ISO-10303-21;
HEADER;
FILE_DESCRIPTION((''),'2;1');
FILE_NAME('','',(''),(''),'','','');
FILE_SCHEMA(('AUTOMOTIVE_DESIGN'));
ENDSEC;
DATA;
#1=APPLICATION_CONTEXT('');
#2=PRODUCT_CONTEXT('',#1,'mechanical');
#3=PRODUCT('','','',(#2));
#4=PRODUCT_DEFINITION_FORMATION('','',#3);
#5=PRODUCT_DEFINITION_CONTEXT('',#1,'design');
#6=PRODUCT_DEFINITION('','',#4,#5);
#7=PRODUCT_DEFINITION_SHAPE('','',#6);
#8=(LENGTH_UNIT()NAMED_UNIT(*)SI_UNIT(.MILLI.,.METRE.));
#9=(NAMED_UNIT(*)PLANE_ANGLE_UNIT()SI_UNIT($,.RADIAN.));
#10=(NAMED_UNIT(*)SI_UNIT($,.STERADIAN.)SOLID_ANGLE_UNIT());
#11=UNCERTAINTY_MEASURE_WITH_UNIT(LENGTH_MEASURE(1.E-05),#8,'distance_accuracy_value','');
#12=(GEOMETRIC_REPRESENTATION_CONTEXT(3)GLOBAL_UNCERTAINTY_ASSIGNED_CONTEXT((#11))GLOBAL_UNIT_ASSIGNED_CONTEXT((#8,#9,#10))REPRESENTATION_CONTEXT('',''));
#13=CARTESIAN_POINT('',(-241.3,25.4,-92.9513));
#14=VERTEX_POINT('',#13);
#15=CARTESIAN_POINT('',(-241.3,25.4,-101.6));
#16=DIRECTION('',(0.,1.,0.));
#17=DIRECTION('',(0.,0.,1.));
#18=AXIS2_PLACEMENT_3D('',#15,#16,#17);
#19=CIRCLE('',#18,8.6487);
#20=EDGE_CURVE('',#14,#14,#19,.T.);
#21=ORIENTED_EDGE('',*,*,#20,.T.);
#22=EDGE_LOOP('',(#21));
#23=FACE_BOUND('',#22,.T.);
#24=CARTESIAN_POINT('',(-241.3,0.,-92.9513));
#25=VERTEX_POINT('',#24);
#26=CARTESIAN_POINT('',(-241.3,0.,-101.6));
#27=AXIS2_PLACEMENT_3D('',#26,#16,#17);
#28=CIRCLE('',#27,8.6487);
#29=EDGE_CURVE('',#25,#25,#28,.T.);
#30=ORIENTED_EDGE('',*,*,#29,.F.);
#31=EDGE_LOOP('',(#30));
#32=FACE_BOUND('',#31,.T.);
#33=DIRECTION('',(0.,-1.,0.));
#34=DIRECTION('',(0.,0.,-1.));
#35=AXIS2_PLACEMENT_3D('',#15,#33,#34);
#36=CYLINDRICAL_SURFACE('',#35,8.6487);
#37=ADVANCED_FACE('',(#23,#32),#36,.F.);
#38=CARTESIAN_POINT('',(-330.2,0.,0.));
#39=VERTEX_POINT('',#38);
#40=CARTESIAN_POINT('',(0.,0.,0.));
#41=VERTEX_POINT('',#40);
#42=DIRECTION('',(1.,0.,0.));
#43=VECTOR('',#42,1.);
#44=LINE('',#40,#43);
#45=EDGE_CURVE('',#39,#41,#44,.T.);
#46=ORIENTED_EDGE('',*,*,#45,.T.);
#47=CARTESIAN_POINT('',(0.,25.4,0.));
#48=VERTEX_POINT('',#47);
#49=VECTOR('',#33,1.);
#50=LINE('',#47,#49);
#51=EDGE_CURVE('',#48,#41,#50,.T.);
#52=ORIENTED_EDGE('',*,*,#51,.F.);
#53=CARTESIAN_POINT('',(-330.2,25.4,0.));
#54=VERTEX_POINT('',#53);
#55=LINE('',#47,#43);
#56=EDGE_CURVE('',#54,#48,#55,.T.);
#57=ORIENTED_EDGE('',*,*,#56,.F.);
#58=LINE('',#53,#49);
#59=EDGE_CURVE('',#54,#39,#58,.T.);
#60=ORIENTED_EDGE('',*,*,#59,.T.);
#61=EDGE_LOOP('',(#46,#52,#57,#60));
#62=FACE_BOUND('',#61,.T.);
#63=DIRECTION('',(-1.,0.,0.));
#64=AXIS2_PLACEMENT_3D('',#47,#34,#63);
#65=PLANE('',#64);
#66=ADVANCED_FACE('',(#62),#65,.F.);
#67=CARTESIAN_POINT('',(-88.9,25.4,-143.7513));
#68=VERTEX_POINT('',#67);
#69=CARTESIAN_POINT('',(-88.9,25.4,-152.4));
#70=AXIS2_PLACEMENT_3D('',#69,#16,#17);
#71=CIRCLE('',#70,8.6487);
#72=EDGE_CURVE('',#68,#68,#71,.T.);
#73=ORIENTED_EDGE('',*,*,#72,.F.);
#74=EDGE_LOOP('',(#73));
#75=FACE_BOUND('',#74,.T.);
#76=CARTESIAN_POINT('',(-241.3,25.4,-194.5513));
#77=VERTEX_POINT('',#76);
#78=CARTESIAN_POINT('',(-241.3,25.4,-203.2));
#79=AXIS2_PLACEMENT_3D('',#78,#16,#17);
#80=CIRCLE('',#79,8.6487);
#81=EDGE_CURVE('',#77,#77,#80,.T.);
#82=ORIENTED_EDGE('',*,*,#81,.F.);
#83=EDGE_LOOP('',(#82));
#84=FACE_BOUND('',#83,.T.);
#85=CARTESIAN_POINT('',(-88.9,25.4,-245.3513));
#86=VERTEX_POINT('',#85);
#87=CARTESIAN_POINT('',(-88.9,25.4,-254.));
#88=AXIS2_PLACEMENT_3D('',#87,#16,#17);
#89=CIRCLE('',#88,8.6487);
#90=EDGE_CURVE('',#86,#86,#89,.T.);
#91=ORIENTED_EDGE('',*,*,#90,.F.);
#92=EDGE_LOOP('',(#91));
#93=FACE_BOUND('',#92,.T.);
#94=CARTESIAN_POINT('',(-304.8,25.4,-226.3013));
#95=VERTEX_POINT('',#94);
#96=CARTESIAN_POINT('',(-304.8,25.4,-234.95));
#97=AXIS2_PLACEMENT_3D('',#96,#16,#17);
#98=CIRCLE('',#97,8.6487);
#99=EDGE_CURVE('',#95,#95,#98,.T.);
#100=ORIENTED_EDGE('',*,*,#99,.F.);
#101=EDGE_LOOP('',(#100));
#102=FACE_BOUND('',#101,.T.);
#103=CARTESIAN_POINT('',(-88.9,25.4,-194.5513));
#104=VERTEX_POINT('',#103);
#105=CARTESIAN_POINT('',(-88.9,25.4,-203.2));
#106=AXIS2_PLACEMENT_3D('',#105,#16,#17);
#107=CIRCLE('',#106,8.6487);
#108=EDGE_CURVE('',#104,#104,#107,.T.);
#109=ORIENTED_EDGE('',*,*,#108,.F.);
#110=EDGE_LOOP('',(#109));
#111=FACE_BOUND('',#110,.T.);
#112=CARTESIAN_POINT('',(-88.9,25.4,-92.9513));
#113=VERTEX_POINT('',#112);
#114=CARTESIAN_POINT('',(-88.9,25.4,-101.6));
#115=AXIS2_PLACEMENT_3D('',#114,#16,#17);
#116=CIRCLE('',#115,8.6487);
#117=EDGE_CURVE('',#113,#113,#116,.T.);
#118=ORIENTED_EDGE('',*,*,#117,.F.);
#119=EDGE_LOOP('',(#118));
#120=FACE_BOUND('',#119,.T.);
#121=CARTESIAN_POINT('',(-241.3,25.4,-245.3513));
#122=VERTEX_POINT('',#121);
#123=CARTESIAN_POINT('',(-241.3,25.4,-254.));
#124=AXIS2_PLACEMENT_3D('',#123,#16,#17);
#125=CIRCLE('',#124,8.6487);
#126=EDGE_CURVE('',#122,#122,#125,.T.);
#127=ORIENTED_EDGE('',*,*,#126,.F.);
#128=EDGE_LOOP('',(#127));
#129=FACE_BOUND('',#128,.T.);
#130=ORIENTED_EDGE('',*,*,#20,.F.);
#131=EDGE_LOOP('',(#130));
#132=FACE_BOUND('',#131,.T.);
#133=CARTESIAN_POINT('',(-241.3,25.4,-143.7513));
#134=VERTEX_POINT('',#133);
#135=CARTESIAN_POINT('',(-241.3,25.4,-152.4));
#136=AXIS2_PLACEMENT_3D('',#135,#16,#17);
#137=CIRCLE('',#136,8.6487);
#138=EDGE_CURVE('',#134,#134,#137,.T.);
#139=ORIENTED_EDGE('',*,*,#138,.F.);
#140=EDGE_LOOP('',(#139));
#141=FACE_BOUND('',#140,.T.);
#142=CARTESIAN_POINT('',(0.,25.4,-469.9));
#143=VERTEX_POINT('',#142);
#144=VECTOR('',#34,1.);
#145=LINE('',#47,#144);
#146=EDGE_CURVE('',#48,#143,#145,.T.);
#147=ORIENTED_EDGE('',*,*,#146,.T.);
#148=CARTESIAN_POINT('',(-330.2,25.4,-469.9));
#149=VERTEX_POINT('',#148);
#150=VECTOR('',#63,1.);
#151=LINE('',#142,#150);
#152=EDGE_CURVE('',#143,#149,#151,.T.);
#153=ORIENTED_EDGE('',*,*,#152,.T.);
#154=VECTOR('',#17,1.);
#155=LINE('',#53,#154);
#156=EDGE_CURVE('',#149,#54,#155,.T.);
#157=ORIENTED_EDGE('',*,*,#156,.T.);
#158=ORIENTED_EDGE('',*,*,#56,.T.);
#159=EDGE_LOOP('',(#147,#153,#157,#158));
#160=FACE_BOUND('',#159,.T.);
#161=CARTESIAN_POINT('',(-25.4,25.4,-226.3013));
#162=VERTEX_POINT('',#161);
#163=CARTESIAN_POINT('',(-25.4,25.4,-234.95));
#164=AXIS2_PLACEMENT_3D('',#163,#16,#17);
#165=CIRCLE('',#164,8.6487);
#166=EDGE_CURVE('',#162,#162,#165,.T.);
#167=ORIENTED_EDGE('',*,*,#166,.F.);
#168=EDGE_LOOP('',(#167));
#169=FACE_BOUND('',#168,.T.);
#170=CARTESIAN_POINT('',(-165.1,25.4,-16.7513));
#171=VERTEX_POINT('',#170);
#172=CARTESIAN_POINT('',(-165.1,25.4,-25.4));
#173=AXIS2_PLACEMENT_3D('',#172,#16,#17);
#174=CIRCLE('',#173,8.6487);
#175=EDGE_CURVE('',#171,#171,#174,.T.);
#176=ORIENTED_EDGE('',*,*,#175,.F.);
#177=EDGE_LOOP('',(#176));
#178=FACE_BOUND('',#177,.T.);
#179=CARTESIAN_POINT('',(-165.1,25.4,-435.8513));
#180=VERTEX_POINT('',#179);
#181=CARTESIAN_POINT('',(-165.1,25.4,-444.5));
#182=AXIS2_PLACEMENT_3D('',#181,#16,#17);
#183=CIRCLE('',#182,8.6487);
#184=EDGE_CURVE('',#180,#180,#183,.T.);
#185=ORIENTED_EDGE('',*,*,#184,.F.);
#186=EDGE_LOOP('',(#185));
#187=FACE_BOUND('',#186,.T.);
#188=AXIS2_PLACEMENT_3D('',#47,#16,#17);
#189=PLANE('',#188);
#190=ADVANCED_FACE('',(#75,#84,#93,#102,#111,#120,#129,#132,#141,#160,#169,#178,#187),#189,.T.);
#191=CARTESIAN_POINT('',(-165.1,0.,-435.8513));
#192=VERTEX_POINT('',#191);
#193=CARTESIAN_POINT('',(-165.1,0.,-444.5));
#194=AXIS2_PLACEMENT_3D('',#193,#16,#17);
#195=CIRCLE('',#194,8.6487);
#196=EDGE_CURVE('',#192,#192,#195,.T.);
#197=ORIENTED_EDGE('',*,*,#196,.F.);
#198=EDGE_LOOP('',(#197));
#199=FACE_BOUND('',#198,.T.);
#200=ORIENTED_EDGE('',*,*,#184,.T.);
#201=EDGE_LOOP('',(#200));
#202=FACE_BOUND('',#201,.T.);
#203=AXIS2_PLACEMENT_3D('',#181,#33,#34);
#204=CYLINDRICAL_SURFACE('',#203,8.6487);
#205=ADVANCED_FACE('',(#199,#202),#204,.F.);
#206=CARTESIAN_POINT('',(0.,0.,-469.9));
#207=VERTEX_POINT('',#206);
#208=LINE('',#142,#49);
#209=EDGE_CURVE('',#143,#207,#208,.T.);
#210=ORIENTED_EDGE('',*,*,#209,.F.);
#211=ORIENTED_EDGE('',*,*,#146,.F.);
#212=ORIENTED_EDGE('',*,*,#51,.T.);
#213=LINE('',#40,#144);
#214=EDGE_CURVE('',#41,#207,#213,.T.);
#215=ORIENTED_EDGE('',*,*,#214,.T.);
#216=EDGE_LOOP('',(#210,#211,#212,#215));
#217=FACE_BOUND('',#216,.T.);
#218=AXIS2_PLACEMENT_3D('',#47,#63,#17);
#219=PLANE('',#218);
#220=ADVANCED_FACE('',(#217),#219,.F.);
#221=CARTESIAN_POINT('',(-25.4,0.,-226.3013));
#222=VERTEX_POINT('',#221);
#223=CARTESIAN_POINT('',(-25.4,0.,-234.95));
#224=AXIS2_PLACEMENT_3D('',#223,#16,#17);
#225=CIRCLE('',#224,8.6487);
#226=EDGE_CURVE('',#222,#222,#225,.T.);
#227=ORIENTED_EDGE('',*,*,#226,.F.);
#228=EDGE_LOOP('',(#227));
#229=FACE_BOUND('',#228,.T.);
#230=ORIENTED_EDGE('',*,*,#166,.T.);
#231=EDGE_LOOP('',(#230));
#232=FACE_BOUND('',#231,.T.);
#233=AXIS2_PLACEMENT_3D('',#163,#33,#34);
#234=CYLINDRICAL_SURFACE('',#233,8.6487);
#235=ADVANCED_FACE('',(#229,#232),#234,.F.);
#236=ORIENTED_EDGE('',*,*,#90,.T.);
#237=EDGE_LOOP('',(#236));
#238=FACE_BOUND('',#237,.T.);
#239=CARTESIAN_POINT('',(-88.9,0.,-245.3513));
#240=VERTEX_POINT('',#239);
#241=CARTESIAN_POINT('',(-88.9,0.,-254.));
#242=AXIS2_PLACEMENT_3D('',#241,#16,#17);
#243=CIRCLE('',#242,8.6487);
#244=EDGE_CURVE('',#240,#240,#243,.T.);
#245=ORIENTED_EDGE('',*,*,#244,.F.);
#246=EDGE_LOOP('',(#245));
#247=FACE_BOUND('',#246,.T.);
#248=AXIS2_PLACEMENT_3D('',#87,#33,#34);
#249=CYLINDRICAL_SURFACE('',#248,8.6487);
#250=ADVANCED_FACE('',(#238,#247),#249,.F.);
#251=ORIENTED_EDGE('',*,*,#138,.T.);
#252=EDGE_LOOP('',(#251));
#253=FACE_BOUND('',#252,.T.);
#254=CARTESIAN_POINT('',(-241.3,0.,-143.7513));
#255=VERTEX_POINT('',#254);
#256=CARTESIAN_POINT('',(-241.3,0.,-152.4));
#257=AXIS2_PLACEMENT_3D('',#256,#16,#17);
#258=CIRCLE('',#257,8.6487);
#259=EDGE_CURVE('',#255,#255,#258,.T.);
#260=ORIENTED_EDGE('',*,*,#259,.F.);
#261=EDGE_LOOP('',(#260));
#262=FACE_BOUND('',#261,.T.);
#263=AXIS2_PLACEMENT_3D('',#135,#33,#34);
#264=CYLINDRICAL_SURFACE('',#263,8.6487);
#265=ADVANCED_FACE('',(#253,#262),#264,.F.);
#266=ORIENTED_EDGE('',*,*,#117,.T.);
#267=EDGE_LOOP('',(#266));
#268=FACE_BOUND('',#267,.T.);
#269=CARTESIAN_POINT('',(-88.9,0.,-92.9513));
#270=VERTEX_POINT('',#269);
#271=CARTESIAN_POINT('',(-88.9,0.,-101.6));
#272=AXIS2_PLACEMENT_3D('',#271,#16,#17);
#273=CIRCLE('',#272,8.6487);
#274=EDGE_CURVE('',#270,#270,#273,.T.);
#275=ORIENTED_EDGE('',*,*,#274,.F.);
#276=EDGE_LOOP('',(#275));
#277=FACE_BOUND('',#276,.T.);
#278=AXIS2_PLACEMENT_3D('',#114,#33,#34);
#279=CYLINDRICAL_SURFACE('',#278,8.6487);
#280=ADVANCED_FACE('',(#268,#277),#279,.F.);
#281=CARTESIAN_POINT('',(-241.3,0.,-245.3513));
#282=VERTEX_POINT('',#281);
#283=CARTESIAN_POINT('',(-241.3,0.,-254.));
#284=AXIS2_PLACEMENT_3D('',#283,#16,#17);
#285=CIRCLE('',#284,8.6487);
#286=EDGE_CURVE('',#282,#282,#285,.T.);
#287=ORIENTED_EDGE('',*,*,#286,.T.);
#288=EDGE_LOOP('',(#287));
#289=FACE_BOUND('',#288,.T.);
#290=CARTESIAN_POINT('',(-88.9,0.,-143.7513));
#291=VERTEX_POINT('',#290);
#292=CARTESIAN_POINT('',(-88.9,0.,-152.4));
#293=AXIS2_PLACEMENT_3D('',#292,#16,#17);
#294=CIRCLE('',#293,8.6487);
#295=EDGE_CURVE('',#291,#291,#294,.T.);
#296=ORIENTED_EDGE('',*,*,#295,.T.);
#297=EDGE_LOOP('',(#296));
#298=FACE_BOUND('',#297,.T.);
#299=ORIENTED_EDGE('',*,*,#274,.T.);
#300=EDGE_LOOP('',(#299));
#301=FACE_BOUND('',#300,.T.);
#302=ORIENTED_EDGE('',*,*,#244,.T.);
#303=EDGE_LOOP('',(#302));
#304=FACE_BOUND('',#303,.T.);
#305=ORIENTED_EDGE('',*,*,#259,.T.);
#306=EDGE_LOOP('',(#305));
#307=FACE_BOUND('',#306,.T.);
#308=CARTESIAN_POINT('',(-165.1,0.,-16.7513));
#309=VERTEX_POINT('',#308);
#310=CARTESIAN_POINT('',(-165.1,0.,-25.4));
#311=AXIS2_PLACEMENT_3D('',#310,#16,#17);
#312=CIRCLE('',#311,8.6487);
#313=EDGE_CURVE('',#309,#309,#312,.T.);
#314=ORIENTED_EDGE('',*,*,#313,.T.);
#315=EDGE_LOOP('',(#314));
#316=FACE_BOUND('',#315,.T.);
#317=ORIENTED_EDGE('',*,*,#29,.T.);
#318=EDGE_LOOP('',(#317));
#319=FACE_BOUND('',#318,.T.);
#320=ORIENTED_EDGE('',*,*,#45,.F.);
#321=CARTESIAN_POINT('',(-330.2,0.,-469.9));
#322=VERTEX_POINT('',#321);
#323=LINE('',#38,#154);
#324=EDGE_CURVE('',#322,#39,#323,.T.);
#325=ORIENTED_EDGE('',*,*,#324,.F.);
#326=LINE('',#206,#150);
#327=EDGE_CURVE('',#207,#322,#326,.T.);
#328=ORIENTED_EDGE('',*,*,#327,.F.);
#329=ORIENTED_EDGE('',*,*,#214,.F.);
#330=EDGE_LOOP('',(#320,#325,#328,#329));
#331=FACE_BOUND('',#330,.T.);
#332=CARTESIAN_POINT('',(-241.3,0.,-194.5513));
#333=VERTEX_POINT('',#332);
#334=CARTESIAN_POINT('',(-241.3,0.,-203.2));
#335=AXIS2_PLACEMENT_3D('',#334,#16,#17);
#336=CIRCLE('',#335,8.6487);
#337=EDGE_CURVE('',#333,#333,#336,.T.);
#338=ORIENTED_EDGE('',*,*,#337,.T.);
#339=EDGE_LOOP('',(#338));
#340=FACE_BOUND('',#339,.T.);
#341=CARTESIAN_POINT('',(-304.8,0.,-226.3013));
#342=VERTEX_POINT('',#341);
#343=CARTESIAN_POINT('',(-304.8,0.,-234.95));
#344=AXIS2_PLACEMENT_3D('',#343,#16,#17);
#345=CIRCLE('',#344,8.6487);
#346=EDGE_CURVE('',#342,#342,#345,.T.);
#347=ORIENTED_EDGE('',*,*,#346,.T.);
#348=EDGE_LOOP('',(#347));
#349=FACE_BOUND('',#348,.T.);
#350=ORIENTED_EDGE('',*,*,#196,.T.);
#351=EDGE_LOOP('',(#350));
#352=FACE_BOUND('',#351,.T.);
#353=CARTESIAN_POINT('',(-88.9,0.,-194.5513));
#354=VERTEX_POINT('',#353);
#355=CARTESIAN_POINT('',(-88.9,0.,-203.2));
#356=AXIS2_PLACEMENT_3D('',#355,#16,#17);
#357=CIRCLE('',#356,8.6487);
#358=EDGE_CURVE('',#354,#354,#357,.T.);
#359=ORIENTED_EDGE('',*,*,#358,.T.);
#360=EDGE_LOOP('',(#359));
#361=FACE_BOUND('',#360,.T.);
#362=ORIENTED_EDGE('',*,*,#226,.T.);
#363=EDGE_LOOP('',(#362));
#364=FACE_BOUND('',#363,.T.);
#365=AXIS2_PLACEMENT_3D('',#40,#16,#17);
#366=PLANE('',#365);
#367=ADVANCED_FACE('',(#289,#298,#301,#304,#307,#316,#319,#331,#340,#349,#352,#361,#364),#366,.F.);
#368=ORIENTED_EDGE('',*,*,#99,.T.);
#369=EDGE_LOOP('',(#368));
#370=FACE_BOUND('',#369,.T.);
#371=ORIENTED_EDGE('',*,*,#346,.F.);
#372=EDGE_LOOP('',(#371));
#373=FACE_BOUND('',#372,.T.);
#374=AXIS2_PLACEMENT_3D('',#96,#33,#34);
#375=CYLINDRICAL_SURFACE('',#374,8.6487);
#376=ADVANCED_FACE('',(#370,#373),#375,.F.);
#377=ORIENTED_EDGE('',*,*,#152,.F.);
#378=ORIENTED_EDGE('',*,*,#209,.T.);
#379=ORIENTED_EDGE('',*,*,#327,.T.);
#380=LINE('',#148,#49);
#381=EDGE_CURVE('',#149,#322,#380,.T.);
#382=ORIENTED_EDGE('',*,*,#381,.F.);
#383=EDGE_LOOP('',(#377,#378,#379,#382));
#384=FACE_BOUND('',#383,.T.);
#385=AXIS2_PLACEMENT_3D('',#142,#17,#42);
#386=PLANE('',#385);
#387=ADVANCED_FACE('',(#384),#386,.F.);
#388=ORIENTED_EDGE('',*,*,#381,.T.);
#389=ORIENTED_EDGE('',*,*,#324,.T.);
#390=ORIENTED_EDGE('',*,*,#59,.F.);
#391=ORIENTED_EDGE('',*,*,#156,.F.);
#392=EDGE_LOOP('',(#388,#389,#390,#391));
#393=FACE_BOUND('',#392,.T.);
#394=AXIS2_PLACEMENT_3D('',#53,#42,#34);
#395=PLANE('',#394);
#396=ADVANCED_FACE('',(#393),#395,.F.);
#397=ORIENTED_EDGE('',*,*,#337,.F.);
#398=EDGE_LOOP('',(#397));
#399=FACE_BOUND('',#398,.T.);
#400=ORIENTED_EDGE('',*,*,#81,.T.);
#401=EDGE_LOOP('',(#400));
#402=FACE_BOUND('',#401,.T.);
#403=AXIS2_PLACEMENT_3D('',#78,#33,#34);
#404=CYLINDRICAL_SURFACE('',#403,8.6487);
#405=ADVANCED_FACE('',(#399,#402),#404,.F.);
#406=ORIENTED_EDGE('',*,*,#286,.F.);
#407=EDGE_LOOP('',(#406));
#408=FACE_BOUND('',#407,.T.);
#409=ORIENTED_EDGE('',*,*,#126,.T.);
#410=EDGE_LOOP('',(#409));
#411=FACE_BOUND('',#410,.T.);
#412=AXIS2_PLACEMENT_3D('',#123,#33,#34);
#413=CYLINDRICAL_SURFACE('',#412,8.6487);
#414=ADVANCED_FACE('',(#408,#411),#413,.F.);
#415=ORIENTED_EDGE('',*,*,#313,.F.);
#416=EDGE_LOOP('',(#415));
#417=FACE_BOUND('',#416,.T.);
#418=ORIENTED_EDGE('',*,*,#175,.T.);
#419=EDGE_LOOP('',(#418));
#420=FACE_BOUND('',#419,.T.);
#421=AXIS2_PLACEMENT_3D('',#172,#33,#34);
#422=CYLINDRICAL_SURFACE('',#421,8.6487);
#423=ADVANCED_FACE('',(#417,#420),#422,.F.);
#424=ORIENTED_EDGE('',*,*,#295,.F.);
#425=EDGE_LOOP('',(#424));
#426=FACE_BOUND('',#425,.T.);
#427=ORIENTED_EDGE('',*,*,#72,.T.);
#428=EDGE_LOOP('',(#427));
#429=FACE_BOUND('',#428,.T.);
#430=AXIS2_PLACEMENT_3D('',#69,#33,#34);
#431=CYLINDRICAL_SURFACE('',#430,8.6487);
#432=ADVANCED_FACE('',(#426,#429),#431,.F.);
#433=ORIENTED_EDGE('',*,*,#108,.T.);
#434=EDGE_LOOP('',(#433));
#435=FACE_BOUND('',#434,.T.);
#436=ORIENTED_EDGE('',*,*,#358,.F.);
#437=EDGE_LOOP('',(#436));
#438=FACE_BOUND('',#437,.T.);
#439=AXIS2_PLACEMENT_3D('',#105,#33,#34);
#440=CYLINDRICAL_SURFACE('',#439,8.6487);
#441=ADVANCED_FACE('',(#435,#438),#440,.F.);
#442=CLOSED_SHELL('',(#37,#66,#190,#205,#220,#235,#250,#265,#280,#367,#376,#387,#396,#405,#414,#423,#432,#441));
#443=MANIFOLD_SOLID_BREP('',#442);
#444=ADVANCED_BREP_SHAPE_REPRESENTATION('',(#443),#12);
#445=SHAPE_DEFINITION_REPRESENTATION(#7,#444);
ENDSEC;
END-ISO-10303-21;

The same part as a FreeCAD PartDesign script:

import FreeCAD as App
import Part
import Sketcher

V = App.Vector
Q = App.Units.Quantity

doc = App.newDocument("Part")
params = doc.addObject("Spreadsheet::Sheet", "Params")
for row, (alias, value) in enumerate([
    ("sketch1_width", "13 in"),
    ("sketch1_diameter", "0.681 in"),
    ("sketch1_height", "18.5 in"),
    ("pad1_length", "1 in"),
], start=1):
    params.set(f"A{row}", alias)
    params.set(f"B{row}", "=" + value)
    params.setAlias(f"B{row}", alias)

body = doc.addObject("PartDesign::Body", "Body")

# Sketch on XZ plane
sketch1 = body.newObject("Sketcher::SketchObject", "Sketch")
sketch1.AttachmentSupport = (doc.getObject("XZ_Plane"), [""])
sketch1.MapMode = "FlatFace"
sketch1.addGeometry([
    Part.LineSegment(V(-330.2, -469.9, 0), V(-330.2, 0, 0)),  # 0
    Part.LineSegment(V(-330.2, 0, 0), V(0, 0, 0)),  # 1
    Part.LineSegment(V(0, 0, 0), V(0, -469.9, 0)),  # 2
    Part.LineSegment(V(0, -469.9, 0), V(-330.2, -469.9, 0)),  # 3
    Part.Circle(V(-241.3, -101.6, 0), V(0, 0, 1), 8.6487),  # 4
    Part.Circle(V(-241.3, -152.4, 0), V(0, 0, 1), 8.6487),  # 5
    Part.Circle(V(-241.3, -203.2, 0), V(0, 0, 1), 8.6487),  # 6
    Part.Circle(V(-165.1, -25.4, 0), V(0, 0, 1), 8.6487),  # 7
    Part.Circle(V(-88.9, -101.6, 0), V(0, 0, 1), 8.6487),  # 8
    Part.Circle(V(-88.9, -152.4, 0), V(0, 0, 1), 8.6487),  # 9
    Part.Circle(V(-88.9, -203.2, 0), V(0, 0, 1), 8.6487),  # 10
    Part.Circle(V(-304.8, -234.95, 0), V(0, 0, 1), 8.6487),  # 11
    Part.Circle(V(-241.3, -254, 0), V(0, 0, 1), 8.6487),  # 12
    Part.Circle(V(-88.9, -254, 0), V(0, 0, 1), 8.6487),  # 13
    Part.Circle(V(-25.4, -234.95, 0), V(0, 0, 1), 8.6487),  # 14
    Part.Circle(V(-165.1, -444.5, 0), V(0, 0, 1), 8.6487),  # 15
], False)
sketch1.addConstraint([
    Sketcher.Constraint("Coincident", 0, 2, 1, 1),
    Sketcher.Constraint("Coincident", 1, 2, 2, 1),
    Sketcher.Constraint("Coincident", 2, 2, 3, 1),
    Sketcher.Constraint("Coincident", 3, 2, 0, 1),
    Sketcher.Constraint("Vertical", 0),
    Sketcher.Constraint("Horizontal", 1),
    Sketcher.Constraint("Vertical", 2),
    Sketcher.Constraint("Horizontal", 3),
    Sketcher.Constraint("Coincident", 1, 2, -1, 1),
    Sketcher.Constraint("Equal", 4, 5),
    Sketcher.Constraint("Equal", 5, 6),
    Sketcher.Constraint("Equal", 6, 7),
    Sketcher.Constraint("Equal", 7, 8),
    Sketcher.Constraint("Equal", 8, 9),
    Sketcher.Constraint("Equal", 9, 10),
    Sketcher.Constraint("Equal", 10, 11),
    Sketcher.Constraint("Equal", 11, 12),
    Sketcher.Constraint("Equal", 12, 13),
    Sketcher.Constraint("Equal", 13, 14),
    Sketcher.Constraint("Equal", 14, 15),
    Sketcher.Constraint("Horizontal", 4, 3, 8, 3),
    Sketcher.Constraint("Horizontal", 5, 3, 9, 3),
    Sketcher.Constraint("Horizontal", 6, 3, 10, 3),
    Sketcher.Constraint("Horizontal", 12, 3, 13, 3),
    Sketcher.Constraint("Horizontal", 11, 3, 14, 3),
    Sketcher.Constraint("Vertical", 4, 3, 5, 3),
    Sketcher.Constraint("Vertical", 5, 3, 6, 3),
    Sketcher.Constraint("Vertical", 8, 3, 9, 3),
    Sketcher.Constraint("Vertical", 9, 3, 10, 3),
    Sketcher.Constraint("Vertical", 6, 3, 12, 3),
    Sketcher.Constraint("Vertical", 10, 3, 13, 3),
    Sketcher.Constraint("Vertical", 7, 3, 15, 3),
    Sketcher.Constraint("DistanceX", 1, 1, 1, 2, Q("13 in")),
    Sketcher.Constraint("Diameter", 4, Q("0.681 in")),
    Sketcher.Constraint("DistanceY", 0, 1, 0, 2, Q("18.5 in")),
    Sketcher.Constraint("DistanceY", 4, 3, -1, 1, Q("4 in")),
    Sketcher.Constraint("DistanceY", 5, 3, -1, 1, Q("6 in")),
    Sketcher.Constraint("DistanceY", 6, 3, -1, 1, Q("8 in")),
    Sketcher.Constraint("DistanceY", 7, 3, -1, 1, Q("1 in")),
    Sketcher.Constraint("DistanceX", 11, 3, -1, 1, Q("12 in")),
    Sketcher.Constraint("DistanceY", 12, 3, -1, 1, Q("10 in")),
    Sketcher.Constraint("DistanceX", 14, 3, -1, 1, Q("1 in")),
    Sketcher.Constraint("DistanceX", 4, 3, 7, 3, Q("3 in")),
    Sketcher.Constraint("DistanceX", 7, 3, 8, 3, Q("3 in")),
    Sketcher.Constraint("DistanceY", 2, 2, 15, 3, Q("1 in")),
    Sketcher.Constraint("DistanceX", 4, 3, -1, 1, Q("9.5 in")),
    Sketcher.Constraint("DistanceY", 11, 3, -1, 1, Q("9.25 in")),
])
sketch1.setExpression("Constraints[32]", "Params.sketch1_width")
sketch1.setExpression("Constraints[33]", "Params.sketch1_diameter")
sketch1.setExpression("Constraints[34]", "Params.sketch1_height")
pad1 = body.newObject("PartDesign::Pad", "Pad")
pad1.Profile = sketch1
pad1.setExpression("Length", "Params.pad1_length")
pad1.Reversed = True

doc.recompute()
